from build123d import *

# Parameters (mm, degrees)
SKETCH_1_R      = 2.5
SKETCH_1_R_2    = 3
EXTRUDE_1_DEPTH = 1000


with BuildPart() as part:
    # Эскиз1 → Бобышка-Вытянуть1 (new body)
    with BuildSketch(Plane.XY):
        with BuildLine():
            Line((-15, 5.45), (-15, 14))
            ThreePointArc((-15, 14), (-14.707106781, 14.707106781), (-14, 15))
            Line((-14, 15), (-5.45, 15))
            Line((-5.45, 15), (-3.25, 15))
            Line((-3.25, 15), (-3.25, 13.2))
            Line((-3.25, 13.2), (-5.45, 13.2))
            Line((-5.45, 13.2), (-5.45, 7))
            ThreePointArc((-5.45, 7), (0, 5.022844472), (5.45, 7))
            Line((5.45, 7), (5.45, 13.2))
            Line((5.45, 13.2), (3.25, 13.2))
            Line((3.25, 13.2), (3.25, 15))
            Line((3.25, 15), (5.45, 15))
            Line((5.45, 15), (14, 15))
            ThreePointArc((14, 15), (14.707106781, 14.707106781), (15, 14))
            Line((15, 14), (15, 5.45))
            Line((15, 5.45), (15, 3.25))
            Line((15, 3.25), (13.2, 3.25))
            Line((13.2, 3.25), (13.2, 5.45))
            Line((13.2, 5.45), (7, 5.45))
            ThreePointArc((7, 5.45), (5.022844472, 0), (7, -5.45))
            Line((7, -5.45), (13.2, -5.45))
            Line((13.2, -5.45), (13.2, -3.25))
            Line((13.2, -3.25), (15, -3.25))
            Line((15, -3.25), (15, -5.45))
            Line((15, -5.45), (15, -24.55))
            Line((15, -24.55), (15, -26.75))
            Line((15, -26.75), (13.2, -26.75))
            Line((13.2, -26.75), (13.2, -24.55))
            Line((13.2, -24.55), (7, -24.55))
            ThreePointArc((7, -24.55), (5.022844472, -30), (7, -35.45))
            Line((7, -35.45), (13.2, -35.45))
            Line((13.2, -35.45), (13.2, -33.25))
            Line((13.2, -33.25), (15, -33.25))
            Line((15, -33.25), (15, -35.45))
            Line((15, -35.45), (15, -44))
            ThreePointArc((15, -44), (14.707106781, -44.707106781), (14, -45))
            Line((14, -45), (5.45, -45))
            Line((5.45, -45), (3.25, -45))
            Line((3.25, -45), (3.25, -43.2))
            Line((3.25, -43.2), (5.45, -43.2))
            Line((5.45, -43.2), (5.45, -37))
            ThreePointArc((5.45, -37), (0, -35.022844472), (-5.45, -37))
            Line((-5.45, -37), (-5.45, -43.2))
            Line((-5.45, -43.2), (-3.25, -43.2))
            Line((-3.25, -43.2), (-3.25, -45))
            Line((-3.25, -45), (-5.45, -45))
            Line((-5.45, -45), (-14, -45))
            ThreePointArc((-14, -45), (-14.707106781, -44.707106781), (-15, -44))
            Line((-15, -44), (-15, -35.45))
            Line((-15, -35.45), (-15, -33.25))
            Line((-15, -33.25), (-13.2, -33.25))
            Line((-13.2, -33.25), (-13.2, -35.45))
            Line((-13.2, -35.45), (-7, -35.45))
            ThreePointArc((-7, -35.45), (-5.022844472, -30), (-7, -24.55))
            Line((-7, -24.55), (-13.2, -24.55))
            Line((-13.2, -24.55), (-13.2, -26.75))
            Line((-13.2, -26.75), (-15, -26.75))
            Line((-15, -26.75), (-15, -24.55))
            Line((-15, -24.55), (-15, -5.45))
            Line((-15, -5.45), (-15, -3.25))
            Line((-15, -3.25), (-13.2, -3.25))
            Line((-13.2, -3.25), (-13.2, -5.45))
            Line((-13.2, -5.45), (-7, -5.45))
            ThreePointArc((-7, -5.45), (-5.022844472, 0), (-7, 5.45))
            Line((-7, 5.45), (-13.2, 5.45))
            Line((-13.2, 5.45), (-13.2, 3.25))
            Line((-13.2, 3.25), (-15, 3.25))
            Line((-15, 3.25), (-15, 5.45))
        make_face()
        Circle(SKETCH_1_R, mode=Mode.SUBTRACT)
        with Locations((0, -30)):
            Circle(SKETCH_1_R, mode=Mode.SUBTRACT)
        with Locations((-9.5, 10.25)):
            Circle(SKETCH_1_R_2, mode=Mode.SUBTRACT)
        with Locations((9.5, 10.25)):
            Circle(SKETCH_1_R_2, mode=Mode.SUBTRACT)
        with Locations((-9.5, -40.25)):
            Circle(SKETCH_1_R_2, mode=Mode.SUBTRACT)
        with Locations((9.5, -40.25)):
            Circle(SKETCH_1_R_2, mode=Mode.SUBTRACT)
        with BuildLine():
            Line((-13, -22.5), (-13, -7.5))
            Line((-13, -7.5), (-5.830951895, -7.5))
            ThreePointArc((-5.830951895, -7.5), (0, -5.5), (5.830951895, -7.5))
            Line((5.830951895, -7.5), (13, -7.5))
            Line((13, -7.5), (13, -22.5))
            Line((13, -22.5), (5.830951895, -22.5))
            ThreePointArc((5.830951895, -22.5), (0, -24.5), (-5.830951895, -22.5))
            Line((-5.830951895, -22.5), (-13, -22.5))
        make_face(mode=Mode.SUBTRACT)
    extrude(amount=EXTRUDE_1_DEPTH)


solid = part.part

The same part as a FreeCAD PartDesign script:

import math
import FreeCAD as App
import Part
import Sketcher
Q = App.Units.Quantity

doc = App.newDocument("Part")
body = doc.addObject("PartDesign::Body", "Body")

sketch1 = body.newObject("Sketcher::SketchObject", "Sketch")
sketch1.AttachmentSupport = (doc.getObject("XY_Plane"), [""])
sketch1.MapMode = "FlatFace"
sketch1.addGeometry([
    Part.ArcOfCircle(Part.Circle(App.Vector(-14, 14, 0), App.Vector(0, 0, 1), 1), math.radians(90), math.radians(180)),
    Part.LineSegment(App.Vector(-15, 14, 0), App.Vector(-15, 3.2, 0)),
    Part.LineSegment(App.Vector(-15, 3.2, 0), App.Vector(-13.2, 3.2, 0)),
    Part.LineSegment(App.Vector(-13.2, 3.2, 0), App.Vector(-13.2, 5.5, 0)),
    Part.LineSegment(App.Vector(-13.2, 5.5, 0), App.Vector(-7, 5.5, 0)),
    Part.ArcOfCircle(Part.Circle(App.Vector(-13.5, 0, 0), App.Vector(0, 0, 1), 8.5), math.radians(-40), math.radians(40)),
    Part.LineSegment(App.Vector(-7, -5.5, 0), App.Vector(-13.2, -5.5, 0)),
    Part.LineSegment(App.Vector(-13.2, -5.5, 0), App.Vector(-13.2, -3.2, 0)),
    Part.LineSegment(App.Vector(-13.2, -3.2, 0), App.Vector(-15, -3.2, 0)),
    Part.LineSegment(App.Vector(-15, -3.2, 0), App.Vector(-15, -26.8, 0)),
    Part.LineSegment(App.Vector(-15, -26.8, 0), App.Vector(-13.2, -26.8, 0)),
    Part.LineSegment(App.Vector(-13.2, -26.8, 0), App.Vector(-13.2, -24.6, 0)),
    Part.LineSegment(App.Vector(-13.2, -24.6, 0), App.Vector(-7, -24.6, 0)),
    Part.ArcOfCircle(Part.Circle(App.Vector(-13.5, -30, 0), App.Vector(0, 0, 1), 8.5), math.radians(-40), math.radians(40)),
    Part.LineSegment(App.Vector(-7, -35.5, 0), App.Vector(-13.2, -35.5, 0)),
    Part.LineSegment(App.Vector(-13.2, -35.5, 0), App.Vector(-13.2, -33.2, 0)),
    Part.LineSegment(App.Vector(-13.2, -33.2, 0), App.Vector(-15, -33.2, 0)),
    Part.LineSegment(App.Vector(-15, -33.2, 0), App.Vector(-15, -44, 0)),
    Part.ArcOfCircle(Part.Circle(App.Vector(-14, -44, 0), App.Vector(0, 0, 1), 1), math.radians(-180), math.radians(-90)),
    Part.LineSegment(App.Vector(-14, -45, 0), App.Vector(-3.2, -45, 0)),
    Part.LineSegment(App.Vector(-3.2, -45, 0), App.Vector(-3.2, -43.2, 0)),
    Part.LineSegment(App.Vector(-3.2, -43.2, 0), App.Vector(-5.5, -43.2, 0)),
    Part.LineSegment(App.Vector(-5.5, -43.2, 0), App.Vector(-5.5, -37, 0)),
    Part.ArcOfCircle(Part.Circle(App.Vector(0, -43.5, 0), App.Vector(0, 0, 1), 8.5), math.radians(50), math.radians(130)),
    Part.LineSegment(App.Vector(5.5, -37, 0), App.Vector(5.5, -43.2, 0)),
    Part.LineSegment(App.Vector(5.5, -43.2, 0), App.Vector(3.2, -43.2, 0)),
    Part.LineSegment(App.Vector(3.2, -43.2, 0), App.Vector(3.2, -45, 0)),
    Part.LineSegment(App.Vector(3.2, -45, 0), App.Vector(14, -45, 0)),
    Part.ArcOfCircle(Part.Circle(App.Vector(14, -44, 0), App.Vector(0, 0, 1), 1), math.radians(-90), math.radians(0)),
    Part.LineSegment(App.Vector(15, -44, 0), App.Vector(15, -33.2, 0)),
    Part.LineSegment(App.Vector(15, -33.2, 0), App.Vector(13.2, -33.2, 0)),
    Part.LineSegment(App.Vector(13.2, -33.2, 0), App.Vector(13.2, -35.5, 0)),
    Part.LineSegment(App.Vector(13.2, -35.5, 0), App.Vector(7, -35.5, 0)),
    Part.ArcOfCircle(Part.Circle(App.Vector(13.5, -30, 0), App.Vector(0, 0, 1), 8.5), math.radians(140), math.radians(220)),
    Part.LineSegment(App.Vector(7, -24.6, 0), App.Vector(13.2, -24.6, 0)),
    Part.LineSegment(App.Vector(13.2, -24.6, 0), App.Vector(13.2, -26.8, 0)),
    Part.LineSegment(App.Vector(13.2, -26.8, 0), App.Vector(15, -26.8, 0)),
    Part.LineSegment(App.Vector(15, -26.8, 0), App.Vector(15, -3.2, 0)),
    Part.LineSegment(App.Vector(15, -3.2, 0), App.Vector(13.2, -3.2, 0)),
    Part.LineSegment(App.Vector(13.2, -3.2, 0), App.Vector(13.2, -5.5, 0)),
    Part.LineSegment(App.Vector(13.2, -5.5, 0), App.Vector(7, -5.5, 0)),
    Part.ArcOfCircle(Part.Circle(App.Vector(13.5, 0, 0), App.Vector(0, 0, 1), 8.5), math.radians(140), math.radians(220)),
    Part.LineSegment(App.Vector(7, 5.5, 0), App.Vector(13.2, 5.5, 0)),
    Part.LineSegment(App.Vector(13.2, 5.5, 0), App.Vector(13.2, 3.2, 0)),
    Part.LineSegment(App.Vector(13.2, 3.2, 0), App.Vector(15, 3.2, 0)),
    Part.LineSegment(App.Vector(15, 3.2, 0), App.Vector(15, 14, 0)),
    Part.ArcOfCircle(Part.Circle(App.Vector(14, 14, 0), App.Vector(0, 0, 1), 1), math.radians(0), math.radians(90)),
    Part.LineSegment(App.Vector(14, 15, 0), App.Vector(3.2, 15, 0)),
    Part.LineSegment(App.Vector(3.2, 15, 0), App.Vector(3.2, 13.2, 0)),
    Part.LineSegment(App.Vector(3.2, 13.2, 0), App.Vector(5.5, 13.2, 0)),
    Part.LineSegment(App.Vector(5.5, 13.2, 0), App.Vector(5.5, 7, 0)),
    Part.ArcOfCircle(Part.Circle(App.Vector(0, 13.5, 0), App.Vector(0, 0, 1), 8.5), math.radians(-130), math.radians(-50)),
    Part.LineSegment(App.Vector(-5.5, 7, 0), App.Vector(-5.5, 13.2, 0)),
    Part.LineSegment(App.Vector(-5.5, 13.2, 0), App.Vector(-3.2, 13.2, 0)),
    Part.LineSegment(App.Vector(-3.2, 13.2, 0), App.Vector(-3.2, 15, 0)),
    Part.LineSegment(App.Vector(-3.2, 15, 0), App.Vector(-14, 15, 0)),
    Part.Circle(App.Vector(9.5, -40.2, 0), App.Vector(0, 0, 1), 3),
    Part.Circle(App.Vector(0, -30, 0), App.Vector(0, 0, 1), 2.5),
    Part.Circle(App.Vector(-9.5, -40.2, 0), App.Vector(0, 0, 1), 3),
    Part.Circle(App.Vector(9.5, 10.2, 0), App.Vector(0, 0, 1), 3),
    Part.LineSegment(App.Vector(-13, -22.5, 0), App.Vector(-13, -7.5, 0)),
    Part.LineSegment(App.Vector(-13, -7.5, 0), App.Vector(-5.8, -7.5, 0)),
    Part.ArcOfCircle(Part.Circle(App.Vector(0, -15, 0), App.Vector(0, 0, 1), 9.5), math.radians(52), math.radians(128)),
    Part.LineSegment(App.Vector(5.8, -7.5, 0), App.Vector(13, -7.5, 0)),
    Part.LineSegment(App.Vector(13, -7.5, 0), App.Vector(13, -22.5, 0)),
    Part.LineSegment(App.Vector(13, -22.5, 0), App.Vector(5.8, -22.5, 0)),
    Part.ArcOfCircle(Part.Circle(App.Vector(0, -15, 0), App.Vector(0, 0, 1), 9.5), math.radians(-128), math.radians(-52)),
    Part.LineSegment(App.Vector(-5.8, -22.5, 0), App.Vector(-13, -22.5, 0)),
    Part.Circle(App.Vector(0, 0, 0), App.Vector(0, 0, 1), 2.5),
    Part.Circle(App.Vector(-9.5, 10.2, 0), App.Vector(0, 0, 1), 3),
], False)
sketch1.addConstraint([
    Sketcher.Constraint("Tangent", 0, 2, 1, 1),
    Sketcher.Constraint("Coincident", 1, 2, 2, 1),
    Sketcher.Constraint("Coincident", 2, 2, 3, 1),
    Sketcher.Constraint("Coincident", 3, 2, 4, 1),
    Sketcher.Constraint("Coincident", 4, 2, 5, 2),
    Sketcher.Constraint("Coincident", 5, 1, 6, 1),
    Sketcher.Constraint("Coincident", 6, 2, 7, 1),
    Sketcher.Constraint("Coincident", 7, 2, 8, 1),
    Sketcher.Constraint("Coincident", 8, 2, 9, 1),
    Sketcher.Constraint("Coincident", 9, 2, 10, 1),
    Sketcher.Constraint("Coincident", 10, 2, 11, 1),
    Sketcher.Constraint("Coincident", 11, 2, 12, 1),
    Sketcher.Constraint("Coincident", 12, 2, 13, 2),
    Sketcher.Constraint("Coincident", 13, 1, 14, 1),
    Sketcher.Constraint("Coincident", 14, 2, 15, 1),
    Sketcher.Constraint("Coincident", 15, 2, 16, 1),
    Sketcher.Constraint("Coincident", 16, 2, 17, 1),
    Sketcher.Constraint("Tangent", 17, 2, 18, 1),
    Sketcher.Constraint("Tangent", 18, 2, 19, 1),
    Sketcher.Constraint("Coincident", 19, 2, 20, 1),
    Sketcher.Constraint("Coincident", 20, 2, 21, 1),
    Sketcher.Constraint("Coincident", 21, 2, 22, 1),
    Sketcher.Constraint("Coincident", 22, 2, 23, 2),
    Sketcher.Constraint("Coincident", 23, 1, 24, 1),
    Sketcher.Constraint("Coincident", 24, 2, 25, 1),
    Sketcher.Constraint("Coincident", 25, 2, 26, 1),
    Sketcher.Constraint("Coincident", 26, 2, 27, 1),
    Sketcher.Constraint("Tangent", 27, 2, 28, 1),
    Sketcher.Constraint("Tangent", 28, 2, 29, 1),
    Sketcher.Constraint("Coincident", 29, 2, 30, 1),
    Sketcher.Constraint("Coincident", 30, 2, 31, 1),
    Sketcher.Constraint("Coincident", 31, 2, 32, 1),
    Sketcher.Constraint("Coincident", 32, 2, 33, 2),
    Sketcher.Constraint("Coincident", 33, 1, 34, 1),
    Sketcher.Constraint("Coincident", 34, 2, 35, 1),
    Sketcher.Constraint("Coincident", 35, 2, 36, 1),
    Sketcher.Constraint("Coincident", 36, 2, 37, 1),
    Sketcher.Constraint("Coincident", 37, 2, 38, 1),
    Sketcher.Constraint("Coincident", 38, 2, 39, 1),
    Sketcher.Constraint("Coincident", 39, 2, 40, 1),
    Sketcher.Constraint("Coincident", 40, 2, 41, 2),
    Sketcher.Constraint("Coincident", 41, 1, 42, 1),
    Sketcher.Constraint("Coincident", 42, 2, 43, 1),
    Sketcher.Constraint("Coincident", 43, 2, 44, 1),
    Sketcher.Constraint("Coincident", 44, 2, 45, 1),
    Sketcher.Constraint("Tangent", 45, 2, 46, 1),
    Sketcher.Constraint("Tangent", 46, 2, 47, 1),
    Sketcher.Constraint("Coincident", 47, 2, 48, 1),
    Sketcher.Constraint("Coincident", 48, 2, 49, 1),
    Sketcher.Constraint("Coincident", 49, 2, 50, 1),
    Sketcher.Constraint("Coincident", 50, 2, 51, 2),
    Sketcher.Constraint("Coincident", 51, 1, 52, 1),
    Sketcher.Constraint("Coincident", 52, 2, 53, 1),
    Sketcher.Constraint("Coincident", 53, 2, 54, 1),
    Sketcher.Constraint("Coincident", 54, 2, 55, 1),
    Sketcher.Constraint("Tangent", 55, 2, 0, 1),
    Sketcher.Constraint("Coincident", 60, 2, 61, 1),
    Sketcher.Constraint("Coincident", 61, 2, 62, 2),
    Sketcher.Constraint("Coincident", 62, 1, 63, 1),
    Sketcher.Constraint("Coincident", 63, 2, 64, 1),
    Sketcher.Constraint("Coincident", 64, 2, 65, 1),
    Sketcher.Constraint("Coincident", 65, 2, 66, 2),
    Sketcher.Constraint("Coincident", 66, 1, 67, 1),
    Sketcher.Constraint("Coincident", 67, 2, 60, 1),
    Sketcher.Constraint("Vertical", 1),
    Sketcher.Constraint("Horizontal", 2),
    Sketcher.Constraint("Vertical", 3),
    Sketcher.Constraint("Horizontal", 4),
    Sketcher.Constraint("Horizontal", 6),
    Sketcher.Constraint("Vertical", 7),
    Sketcher.Constraint("Horizontal", 8),
    Sketcher.Constraint("Vertical", 9),
    Sketcher.Constraint("Horizontal", 10),
    Sketcher.Constraint("Vertical", 11),
    Sketcher.Constraint("Horizontal", 12),
    Sketcher.Constraint("Horizontal", 14),
    Sketcher.Constraint("Vertical", 15),
    Sketcher.Constraint("Horizontal", 16),
    Sketcher.Constraint("Vertical", 17),
    Sketcher.Constraint("Horizontal", 19),
    Sketcher.Constraint("Vertical", 20),
    Sketcher.Constraint("Horizontal", 21),
    Sketcher.Constraint("Vertical", 22),
    Sketcher.Constraint("Vertical", 24),
    Sketcher.Constraint("Horizontal", 25),
    Sketcher.Constraint("Vertical", 26),
    Sketcher.Constraint("Horizontal", 27),
    Sketcher.Constraint("Vertical", 29),
    Sketcher.Constraint("Horizontal", 30),
    Sketcher.Constraint("Vertical", 31),
    Sketcher.Constraint("Horizontal", 32),
    Sketcher.Constraint("Horizontal", 34),
    Sketcher.Constraint("Vertical", 35),
    Sketcher.Constraint("Horizontal", 36),
    Sketcher.Constraint("Vertical", 37),
    Sketcher.Constraint("Horizontal", 38),
    Sketcher.Constraint("Vertical", 39),
    Sketcher.Constraint("Horizontal", 40),
    Sketcher.Constraint("Horizontal", 42),
    Sketcher.Constraint("Vertical", 43),
    Sketcher.Constraint("Horizontal", 44),
    Sketcher.Constraint("Vertical", 45),
    Sketcher.Constraint("Horizontal", 47),
    Sketcher.Constraint("Vertical", 48),
    Sketcher.Constraint("Horizontal", 49),
    Sketcher.Constraint("Vertical", 50),
    Sketcher.Constraint("Vertical", 52),
    Sketcher.Constraint("Horizontal", 53),
    Sketcher.Constraint("Vertical", 54),
    Sketcher.Constraint("Horizontal", 55),
    Sketcher.Constraint("Vertical", 60),
    Sketcher.Constraint("Horizontal", 61),
    Sketcher.Constraint("Horizontal", 63),
    Sketcher.Constraint("Vertical", 64),
    Sketcher.Constraint("Horizontal", 65),
    Sketcher.Constraint("Horizontal", 67),
    Sketcher.Constraint("Coincident", 68, 3, -1, 1),
    Sketcher.Constraint("Coincident", 66, 3, 62, 3),
    Sketcher.Constraint("Equal", 5, 13),
    Sketcher.Constraint("Equal", 0, 18),
    Sketcher.Constraint("Equal", 13, 23),
    Sketcher.Constraint("Equal", 18, 28),
    Sketcher.Constraint("Equal", 23, 33),
    Sketcher.Constraint("Equal", 33, 41),
    Sketcher.Constraint("Equal", 28, 46),
    Sketcher.Constraint("Equal", 41, 51),
    Sketcher.Constraint("Equal", 56, 58),
    Sketcher.Constraint("Equal", 58, 59),
    Sketcher.Constraint("Equal", 62, 66),
    Sketcher.Constraint("Equal", 57, 68),
    Sketcher.Constraint("Equal", 59, 69),
    Sketcher.Constraint("Symmetric", 5, 3, 41, 3, -1, 1),
    Sketcher.Constraint("Symmetric", 1, 2, 37, 2, -1, 1),
    Sketcher.Constraint("Symmetric", 3, 2, 39, 2, -1, 1),
    Sketcher.Constraint("Symmetric", 6, 2, 42, 2, -1, 1),
    Sketcher.Constraint("Symmetric", 8, 2, 44, 2, -1, 1),
    Sketcher.Constraint("Symmetric", 18, 3, 28, 3, -2),
    Sketcher.Constraint("Symmetric", 13, 3, 33, 3, -2),
    Sketcher.Constraint("Symmetric", 0, 3, 46, 3, -2),
    Sketcher.Constraint("Symmetric", 56, 3, 58, 3, -2),
    Sketcher.Constraint("Symmetric", 59, 3, 69, 3, -2),
    Sketcher.Constraint("Symmetric", 22, 2, 23, 1, -2),
    Sketcher.Constraint("Symmetric", 20, 2, 25, 2, -2),
    Sketcher.Constraint("Symmetric", 15, 2, 30, 2, -2),
    Sketcher.Constraint("Symmetric", 11, 2, 34, 2, -2),
    Sketcher.Constraint("Symmetric", 7, 2, 38, 2, -2),
    Sketcher.Constraint("Symmetric", 5, 1, 40, 2, -2),
    Sketcher.Constraint("Symmetric", 50, 2, 51, 1, -2),
    Sketcher.Constraint("Symmetric", 48, 2, 53, 2, -2),
    Sketcher.Constraint("Symmetric", 61, 2, 62, 1, -2),
    Sketcher.Constraint("Symmetric", 64, 2, 67, 2, -2),
    Sketcher.Constraint("PointOnObject", 57, 3, -2),
    Sketcher.Constraint("Horizontal", 33, 3, 57, 3),
    Sketcher.Constraint("Horizontal", 14, 2, 31, 2),
    Sketcher.Constraint("Horizontal", 10, 2, 35, 2),
    Sketcher.Constraint("Vertical", 5, 3, 13, 3),
    Sketcher.Constraint("Vertical", 0, 3, 18, 3),
    Sketcher.Constraint("Vertical", 56, 3, 59, 3),
    Sketcher.Constraint("Vertical", 7, 2, 10, 2),
    Sketcher.Constraint("Vertical", 5, 1, 12, 2),
    Sketcher.Constraint("Vertical", 12, 2, 13, 1),
    Sketcher.Constraint("Vertical", 11, 2, 14, 2),
    Sketcher.Constraint("Vertical", 26, 2, 47, 2),
    Sketcher.Constraint("Vertical", 24, 2, 49, 2),
    Sketcher.Constraint("Vertical", 62, 1, 65, 2),
    Sketcher.Constraint("Equal", 55, 1),
    Sketcher.Constraint("Equal", 53, 3),
    Sketcher.Constraint("Equal", 7, 11),
    Sketcher.Constraint("Equal", 11, 15),
    Sketcher.Constraint("Equal", 1, 17),
    Sketcher.Constraint("Equal", 44, 20),
    Sketcher.Constraint("Equal", 42, 22),
    Sketcher.Constraint("Equal", 26, 48),
    Sketcher.Constraint("Equal", 24, 50),
    Sketcher.Constraint("Diameter", 56, Q("6 mm")),
    Sketcher.Constraint("Diameter", 57, Q("5 mm")),
    Sketcher.Constraint("Radius", 0, Q("1 mm")),
    Sketcher.Constraint("Radius", 5, Q("8.5 mm")),
    Sketcher.Constraint("Radius", 62, Q("9.5 mm")),
    Sketcher.Constraint("DistanceY", 60, 1, 60, 2, Q("15 mm")),
    Sketcher.Constraint("DistanceX", 2, 1, 2, 2, Q("1.8 mm")),
    Sketcher.Constraint("DistanceX", 4, 1, 4, 2, Q("6.2 mm")),
    Sketcher.Constraint("DistanceX", 21, 2, 21, 1, Q("2.2 mm")),
    Sketcher.Constraint("DistanceY", 9, 2, 9, 1, Q("23.5 mm")),
    Sketcher.Constraint("DistanceX", 0, 3, -1, 1, Q("14 mm")),
    Sketcher.Constraint("DistanceY", -1, 1, 0, 3, Q("14 mm")),
    Sketcher.Constraint("DistanceY", 13, 3, -1, 1, Q("30 mm")),
    Sketcher.Constraint("DistanceY", 62, 3, -1, 1, Q("15 mm")),
    Sketcher.Constraint("DistanceX", 60, 2, -1, 1, Q("13 mm")),
    Sketcher.Constraint("DistanceX", -1, 1, 56, 3, Q("9.5 mm")),
    Sketcher.Constraint("DistanceY", 56, 3, -1, 1, Q("40.25 mm")),
    Sketcher.Constraint("DistanceY", -1, 1, 59, 3, Q("10.25 mm")),
])
pad1 = body.newObject("PartDesign::Pad", "Pad")
pad1.Profile = sketch1
pad1.Length = 1000

doc.recompute()
